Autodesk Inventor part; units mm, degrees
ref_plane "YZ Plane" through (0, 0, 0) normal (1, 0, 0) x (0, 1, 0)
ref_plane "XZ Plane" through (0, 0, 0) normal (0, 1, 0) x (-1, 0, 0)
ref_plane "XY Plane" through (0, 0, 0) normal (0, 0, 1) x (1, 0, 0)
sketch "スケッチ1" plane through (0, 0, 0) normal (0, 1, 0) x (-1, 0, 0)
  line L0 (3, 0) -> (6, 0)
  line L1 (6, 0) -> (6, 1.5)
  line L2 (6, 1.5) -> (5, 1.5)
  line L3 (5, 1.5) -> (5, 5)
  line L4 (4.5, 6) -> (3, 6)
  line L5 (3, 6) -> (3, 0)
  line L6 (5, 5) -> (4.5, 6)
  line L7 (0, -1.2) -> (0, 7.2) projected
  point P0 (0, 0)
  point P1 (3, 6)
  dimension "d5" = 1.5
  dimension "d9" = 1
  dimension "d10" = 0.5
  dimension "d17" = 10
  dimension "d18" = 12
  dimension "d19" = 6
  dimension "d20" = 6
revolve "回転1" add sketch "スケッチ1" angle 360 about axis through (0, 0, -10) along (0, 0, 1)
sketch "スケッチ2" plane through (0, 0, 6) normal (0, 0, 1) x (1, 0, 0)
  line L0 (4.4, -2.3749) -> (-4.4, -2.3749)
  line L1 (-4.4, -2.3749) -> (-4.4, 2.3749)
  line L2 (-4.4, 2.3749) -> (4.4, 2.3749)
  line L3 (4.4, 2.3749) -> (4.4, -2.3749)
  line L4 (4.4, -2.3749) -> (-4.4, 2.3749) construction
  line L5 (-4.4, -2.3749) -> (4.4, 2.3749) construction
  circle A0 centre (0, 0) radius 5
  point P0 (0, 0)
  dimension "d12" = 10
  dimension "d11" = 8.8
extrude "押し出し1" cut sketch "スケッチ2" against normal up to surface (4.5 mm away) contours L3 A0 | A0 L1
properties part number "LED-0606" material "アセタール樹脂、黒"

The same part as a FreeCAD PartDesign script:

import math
import FreeCAD as App
import Part
import Sketcher

V = App.Vector

doc = App.newDocument("Part")
body = doc.addObject("PartDesign::Body", "Body")

sketch1 = body.newObject("Sketcher::SketchObject", "Sketch")
sketch1.AttachmentSupport = (doc.getObject("XZ_Plane"), [""])
sketch1.MapMode = "FlatFace"
sketch1.addGeometry([
    Part.LineSegment(V(-3, 6, 0), V(-3, 0, 0)),
    Part.LineSegment(V(-3, 0, 0), V(-6, 0, 0)),
    Part.LineSegment(V(-6, 0, 0), V(-6, 1.5, 0)),
    Part.LineSegment(V(-6, 1.5, 0), V(-5, 1.5, 0)),
    Part.LineSegment(V(-5, 1.5, 0), V(-5, 5, 0)),
    Part.LineSegment(V(-5, 5, 0), V(-4.5, 6, 0)),
    Part.LineSegment(V(-4.5, 6, 0), V(-3, 6, 0)),
], False)
sketch1.addConstraint([
    Sketcher.Constraint("Coincident", 0, 2, 1, 1),
    Sketcher.Constraint("Coincident", 1, 2, 2, 1),
    Sketcher.Constraint("Coincident", 2, 2, 3, 1),
    Sketcher.Constraint("Coincident", 3, 2, 4, 1),
    Sketcher.Constraint("Coincident", 4, 2, 5, 1),
    Sketcher.Constraint("Coincident", 5, 2, 6, 1),
    Sketcher.Constraint("Coincident", 6, 2, 0, 1),
    Sketcher.Constraint("Vertical", 0),
    Sketcher.Constraint("Horizontal", 1),
    Sketcher.Constraint("Vertical", 2),
    Sketcher.Constraint("Horizontal", 3),
    Sketcher.Constraint("Vertical", 4),
    Sketcher.Constraint("Horizontal", 6),
    Sketcher.Constraint("PointOnObject", 0, 2, -1),
    Sketcher.Constraint("Equal", 6, 2),
    Sketcher.Constraint("DistanceX", 3, 1, 3, 2, 1.0),
    Sketcher.Constraint("DistanceY", 0, 2, 0, 1, 6.0),
    Sketcher.Constraint("DistanceX", 6, 1, 6, 2, 1.5),
    Sketcher.Constraint("DistanceX", 1, 2, -1, 1, 6.0),
    Sketcher.Constraint("DistanceY", 4, 2, 5, 2, 1.0),
    Sketcher.Constraint("DistanceX", 4, 2, 5, 2, 0.5),
])
revolution = body.newObject("PartDesign::Revolution", "Revolution")
revolution.Profile = sketch1
revolution.ReferenceAxis = (sketch1, ["V_Axis"])
revolution.Angle = 360

sketch2 = body.newObject("Sketcher::SketchObject", "Sketch001")
sketch2.AttachmentSupport = (doc.getObject("XY_Plane"), [""])
sketch2.MapMode = "FlatFace"
sketch2.AttachmentOffset = App.Placement(V(0, 0, 6), App.Rotation())
sketch2.addGeometry([
    Part.LineSegment(V(4.4, 2.3749, 0), V(4.4, -2.3749, 0)),
    Part.ArcOfCircle(Part.Circle(V(0, 0, 0), V(0, 0, 1), 5), math.radians(-28.357955), math.radians(28.357955)),
    Part.ArcOfCircle(Part.Circle(V(0, 0, 0), V(0, 0, 1), 5), math.radians(151.642045), math.radians(208.357955)),
    Part.LineSegment(V(-4.4, 2.3749, 0), V(-4.4, -2.3749, 0)),
], False)
sketch2.addConstraint([
    Sketcher.Constraint("Coincident", 0, 1, 1, 2),
    Sketcher.Constraint("Coincident", 1, 1, 0, 2),
    Sketcher.Constraint("Coincident", 2, 1, 3, 1),
    Sketcher.Constraint("Coincident", 3, 2, 2, 2),
    Sketcher.Constraint("Vertical", 0),
    Sketcher.Constraint("Vertical", 3),
    Sketcher.Constraint("Coincident", 1, 3, -1, 1),
    Sketcher.Constraint("Coincident", 2, 3, -1, 1),
    Sketcher.Constraint("Equal", 1, 2),
    Sketcher.Constraint("Horizontal", 0, 1, 2, 1),
    Sketcher.Constraint("Radius", 1, 5.0),
    Sketcher.Constraint("DistanceX", 2, 1, 0, 1, 8.8),
])
pocket1 = body.newObject("PartDesign::Pocket", "Pocket")
pocket1.Profile = sketch2
pocket1.Length = 4.5

doc.recompute()
